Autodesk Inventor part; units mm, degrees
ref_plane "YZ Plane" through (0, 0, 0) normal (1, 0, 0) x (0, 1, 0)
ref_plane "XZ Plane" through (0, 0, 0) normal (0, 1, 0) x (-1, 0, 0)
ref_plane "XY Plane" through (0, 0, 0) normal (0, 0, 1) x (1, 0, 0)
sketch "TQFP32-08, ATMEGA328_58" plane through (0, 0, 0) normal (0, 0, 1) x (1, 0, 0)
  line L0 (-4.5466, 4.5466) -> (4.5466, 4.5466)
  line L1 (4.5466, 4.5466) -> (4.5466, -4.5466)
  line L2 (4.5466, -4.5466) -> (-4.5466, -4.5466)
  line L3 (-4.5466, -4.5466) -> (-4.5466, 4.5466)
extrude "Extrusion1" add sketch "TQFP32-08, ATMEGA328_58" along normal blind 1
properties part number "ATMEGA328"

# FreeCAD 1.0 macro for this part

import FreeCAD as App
import Part
import Sketcher
from FreeCAD import Vector
Q = App.Units.Quantity

doc = App.newDocument("Part")
params = doc.addObject("Spreadsheet::Sheet", "Params")
for row, (alias, value) in enumerate([
    ("pad1_length", "1 mm"),
], start=1):
    params.set(f"A{row}", alias)
    params.set(f"B{row}", "=" + value)
    params.setAlias(f"B{row}", alias)

body = doc.addObject("PartDesign::Body", "Body")

sketch1 = doc.addObject("Sketcher::SketchObject", "Sketch")
body.addObject(sketch1)
sketch1.AttachmentSupport = (doc.XY_Plane, [""])
sketch1.MapMode = "FlatFace"
sketch1.addGeometry(Part.LineSegment(Vector(4.5466, 4.5466, 0), Vector(-4.5466, 4.5466, 0)), False)
sketch1.addGeometry(Part.LineSegment(Vector(-4.5466, 4.5466, 0), Vector(-4.5466, -4.5466, 0)), False)
sketch1.addGeometry(Part.LineSegment(Vector(-4.5466, -4.5466, 0), Vector(4.5466, -4.5466, 0)), False)
sketch1.addGeometry(Part.LineSegment(Vector(4.5466, -4.5466, 0), Vector(4.5466, 4.5466, 0)), False)
sketch1.addConstraint(Sketcher.Constraint("Coincident", 0, 2, 1, 1))
sketch1.addConstraint(Sketcher.Constraint("Coincident", 1, 2, 2, 1))
sketch1.addConstraint(Sketcher.Constraint("Coincident", 2, 2, 3, 1))
sketch1.addConstraint(Sketcher.Constraint("Coincident", 3, 2, 0, 1))
sketch1.addConstraint(Sketcher.Constraint("Horizontal", 0))
sketch1.addConstraint(Sketcher.Constraint("Vertical", 1))
sketch1.addConstraint(Sketcher.Constraint("Horizontal", 2))
sketch1.addConstraint(Sketcher.Constraint("Vertical", 3))
sketch1.addConstraint(Sketcher.Constraint("Symmetric", 0, 2, 2, 2, -1, 1))
sketch1.addConstraint(Sketcher.Constraint("Equal", 2, 1))
sketch1.addConstraint(Sketcher.Constraint("DistanceX", 0, 2, 0, 1, Q("9.0932 mm")))
pad1 = doc.addObject("PartDesign::Pad", "Pad")
body.addObject(pad1)
pad1.Profile = sketch1
pad1.setExpression("Length", "Params.pad1_length")

doc.recompute()
